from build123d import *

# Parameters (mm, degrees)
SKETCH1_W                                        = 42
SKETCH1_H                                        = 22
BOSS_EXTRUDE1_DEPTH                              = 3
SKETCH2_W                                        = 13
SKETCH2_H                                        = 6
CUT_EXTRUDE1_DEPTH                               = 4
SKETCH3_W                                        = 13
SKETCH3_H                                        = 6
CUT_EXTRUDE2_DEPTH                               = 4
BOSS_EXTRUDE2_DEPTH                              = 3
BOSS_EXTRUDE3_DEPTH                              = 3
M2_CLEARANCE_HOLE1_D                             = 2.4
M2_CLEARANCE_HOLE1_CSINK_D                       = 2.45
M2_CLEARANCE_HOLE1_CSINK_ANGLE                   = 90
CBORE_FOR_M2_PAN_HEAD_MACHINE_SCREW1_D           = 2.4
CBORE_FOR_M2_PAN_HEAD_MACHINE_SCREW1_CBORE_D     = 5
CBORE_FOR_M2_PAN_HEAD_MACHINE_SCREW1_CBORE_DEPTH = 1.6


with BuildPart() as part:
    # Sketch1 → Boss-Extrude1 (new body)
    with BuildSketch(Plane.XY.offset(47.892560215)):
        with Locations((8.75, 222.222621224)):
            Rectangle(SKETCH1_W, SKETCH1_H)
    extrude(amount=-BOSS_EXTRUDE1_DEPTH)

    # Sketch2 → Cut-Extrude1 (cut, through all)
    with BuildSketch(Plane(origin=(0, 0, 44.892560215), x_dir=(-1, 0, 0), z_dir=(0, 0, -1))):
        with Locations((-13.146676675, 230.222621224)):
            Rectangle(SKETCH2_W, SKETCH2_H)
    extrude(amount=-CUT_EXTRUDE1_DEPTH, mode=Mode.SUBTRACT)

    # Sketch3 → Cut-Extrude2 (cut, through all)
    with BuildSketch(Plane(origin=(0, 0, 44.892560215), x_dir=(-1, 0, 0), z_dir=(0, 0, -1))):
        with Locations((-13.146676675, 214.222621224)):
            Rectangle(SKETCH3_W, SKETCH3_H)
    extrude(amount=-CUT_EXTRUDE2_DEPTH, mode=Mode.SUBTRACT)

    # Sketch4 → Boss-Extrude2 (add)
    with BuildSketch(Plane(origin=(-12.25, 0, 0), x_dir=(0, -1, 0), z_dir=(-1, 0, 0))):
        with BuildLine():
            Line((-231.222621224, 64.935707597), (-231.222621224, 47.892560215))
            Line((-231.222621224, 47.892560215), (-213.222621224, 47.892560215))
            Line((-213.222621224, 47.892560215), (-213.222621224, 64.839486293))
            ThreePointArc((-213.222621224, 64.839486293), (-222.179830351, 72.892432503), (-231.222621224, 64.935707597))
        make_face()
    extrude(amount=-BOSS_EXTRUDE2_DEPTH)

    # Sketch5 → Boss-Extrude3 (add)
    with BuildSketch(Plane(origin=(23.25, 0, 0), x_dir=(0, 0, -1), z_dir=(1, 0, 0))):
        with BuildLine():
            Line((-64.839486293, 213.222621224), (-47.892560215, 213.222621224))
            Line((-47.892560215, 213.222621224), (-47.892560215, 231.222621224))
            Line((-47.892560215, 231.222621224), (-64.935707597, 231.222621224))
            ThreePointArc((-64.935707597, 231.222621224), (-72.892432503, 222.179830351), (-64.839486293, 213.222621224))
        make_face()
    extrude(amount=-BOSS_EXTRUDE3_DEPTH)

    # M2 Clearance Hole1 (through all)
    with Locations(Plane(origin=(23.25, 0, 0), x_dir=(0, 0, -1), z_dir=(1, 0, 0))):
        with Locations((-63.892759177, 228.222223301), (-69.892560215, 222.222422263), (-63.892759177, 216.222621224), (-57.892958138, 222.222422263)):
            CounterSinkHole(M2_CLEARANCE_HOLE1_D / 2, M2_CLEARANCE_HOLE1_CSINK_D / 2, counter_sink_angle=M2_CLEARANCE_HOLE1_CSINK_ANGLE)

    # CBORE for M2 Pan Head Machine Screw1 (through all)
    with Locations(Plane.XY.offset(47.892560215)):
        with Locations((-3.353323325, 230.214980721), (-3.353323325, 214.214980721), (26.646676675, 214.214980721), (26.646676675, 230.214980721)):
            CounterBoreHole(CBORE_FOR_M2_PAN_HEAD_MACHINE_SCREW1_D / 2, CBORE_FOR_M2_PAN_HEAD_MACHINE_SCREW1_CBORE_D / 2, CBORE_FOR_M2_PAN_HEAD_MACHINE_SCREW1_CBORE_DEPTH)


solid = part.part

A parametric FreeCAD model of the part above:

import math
import FreeCAD as App
import Part
import Sketcher


def add_polygon(sketch, points):
    """Adds a closed chain of lines whose ends are joined by coincident constraints."""
    first, n = sketch.GeometryCount, len(points)
    for a, b in zip(points, points[1:] + points[:1]):
        sketch.addGeometry(Part.LineSegment(App.Vector(*a, 0), App.Vector(*b, 0)), False)
    for i in range(n):
        sketch.addConstraint(Sketcher.Constraint("Coincident", first + i, 2, first + (i + 1) % n, 1))

doc = App.newDocument("Part")
params = doc.addObject("Spreadsheet::Sheet", "Params")
for row, (alias, value) in enumerate([
    ("sketch1_width", "42 mm"),
    ("sketch1_height", "22 mm"),
    ("pad1_length", "3 mm"),
    ("sketch2_width", "13 mm"),
    ("sketch2_height", "6 mm"),
    ("sketch3_width", "13 mm"),
    ("sketch3_height", "6 mm"),
    ("sketch4_width", "18 mm"),
    ("pad2_length", "3 mm"),
    ("sketch5_width", "18 mm"),
    ("pad3_length", "3 mm"),
    ("sketch6_diameter", "2.4 mm"),
    ("hole_diameter", "2.4 mm"),
    ("hole_csink_diameter", "2.45 mm"),
    ("sketch7_diameter", "2.4 mm"),
    ("hole2_diameter", "2.4 mm"),
    ("hole2_cbore_diameter", "5 mm"),
    ("hole2_cbore_depth", "1.6 mm"),
], start=1):
    params.set(f"A{row}", alias)
    params.set(f"B{row}", "=" + value)
    params.setAlias(f"B{row}", alias)

body = doc.addObject("PartDesign::Body", "Body")

# Sketch on XY plane
sketch1 = doc.addObject("Sketcher::SketchObject", "Sketch")
body.addObject(sketch1)
sketch1.AttachmentSupport = (doc.XY_Plane, [""])
sketch1.MapMode = "FlatFace"
sketch1.AttachmentOffset = App.Placement(App.Vector(0, 0, 47.89256), App.Rotation())
add_polygon(sketch1, [(-12.25, 233.222621), (-12.25, 211.222621), (29.75, 211.222621), (29.75, 233.222621)])  # lines 0-3
sketch1.addConstraint(Sketcher.Constraint("Vertical", 0))
sketch1.addConstraint(Sketcher.Constraint("Horizontal", 1))
sketch1.addConstraint(Sketcher.Constraint("Vertical", 2))
sketch1.addConstraint(Sketcher.Constraint("Horizontal", 3))
sketch1.addConstraint(Sketcher.Constraint("DistanceX", 1, 1, 1, 2, 42.0))
sketch1.addConstraint(Sketcher.Constraint("DistanceY", 0, 2, 0, 1, 22.0))
sketch1.addConstraint(Sketcher.Constraint("DistanceX", 0, 2, -1, 1, 12.25))
sketch1.addConstraint(Sketcher.Constraint("DistanceY", -1, 1, 0, 2, 211.222621))
sketch1.setExpression("Constraints[8]", "Params.sketch1_width")
sketch1.setExpression("Constraints[9]", "Params.sketch1_height")
pad1 = doc.addObject("PartDesign::Pad", "Pad")
body.addObject(pad1)
pad1.Profile = sketch1
pad1.setExpression("Length", "Params.pad1_length")
pad1.Reversed = True

# Sketch on XY plane
sketch2 = doc.addObject("Sketcher::SketchObject", "Sketch001")
body.addObject(sketch2)
sketch2.AttachmentSupport = (doc.XY_Plane, [""])
sketch2.MapMode = "FlatFace"
sketch2.AttachmentOffset = App.Placement(App.Vector(0, 0, 44.89256), App.Rotation())
add_polygon(sketch2, [(19.646677, 233.222621), (19.646677, 227.222621), (6.646677, 227.222621), (6.646677, 233.222621)])  # lines 0-3
sketch2.addConstraint(Sketcher.Constraint("Vertical", 0))
sketch2.addConstraint(Sketcher.Constraint("Horizontal", 1))
sketch2.addConstraint(Sketcher.Constraint("Vertical", 2))
sketch2.addConstraint(Sketcher.Constraint("Horizontal", 3))
sketch2.addConstraint(Sketcher.Constraint("DistanceX", 1, 2, 1, 1, 13.0))
sketch2.addConstraint(Sketcher.Constraint("DistanceY", 0, 2, 0, 1, 6.0))
sketch2.addConstraint(Sketcher.Constraint("DistanceY", -1, 1, 0, 2, 227.222621))
sketch2.addConstraint(Sketcher.Constraint("DistanceX", -1, 1, 0, 2, 19.646677))
sketch2.setExpression("Constraints[8]", "Params.sketch2_width")
sketch2.setExpression("Constraints[9]", "Params.sketch2_height")
pocket1 = doc.addObject("PartDesign::Pocket", "Pocket")
body.addObject(pocket1)
pocket1.Profile = sketch2
pocket1.Type = "ThroughAll"
pocket1.Reversed = True

# Sketch on XY plane
sketch3 = doc.addObject("Sketcher::SketchObject", "Sketch002")
body.addObject(sketch3)
sketch3.AttachmentSupport = (doc.XY_Plane, [""])
sketch3.MapMode = "FlatFace"
sketch3.AttachmentOffset = App.Placement(App.Vector(0, 0, 44.89256), App.Rotation())
add_polygon(sketch3, [(19.646677, 217.222621), (19.646677, 211.222621), (6.646677, 211.222621), (6.646677, 217.222621)])  # lines 0-3
sketch3.addConstraint(Sketcher.Constraint("Vertical", 0))
sketch3.addConstraint(Sketcher.Constraint("Horizontal", 1))
sketch3.addConstraint(Sketcher.Constraint("Vertical", 2))
sketch3.addConstraint(Sketcher.Constraint("Horizontal", 3))
sketch3.addConstraint(Sketcher.Constraint("DistanceX", 1, 2, 1, 1, 13.0))
sketch3.addConstraint(Sketcher.Constraint("DistanceY", 0, 2, 0, 1, 6.0))
sketch3.addConstraint(Sketcher.Constraint("DistanceY", -1, 1, 0, 2, 211.222621))
sketch3.addConstraint(Sketcher.Constraint("DistanceX", -1, 1, 0, 2, 19.646677))
sketch3.setExpression("Constraints[8]", "Params.sketch3_width")
sketch3.setExpression("Constraints[9]", "Params.sketch3_height")
pocket2 = doc.addObject("PartDesign::Pocket", "Pocket001")
body.addObject(pocket2)
pocket2.Profile = sketch3
pocket2.Type = "ThroughAll"
pocket2.Reversed = True

# Sketch on YZ plane
sketch4 = doc.addObject("Sketcher::SketchObject", "Sketch003")
body.addObject(sketch4)
sketch4.AttachmentSupport = (doc.YZ_Plane, [""])
sketch4.MapMode = "FlatFace"
sketch4.AttachmentOffset = App.Placement(App.Vector(0, 0, -12.25), App.Rotation())
sketch4.addGeometry(Part.LineSegment(App.Vector(231.222621, 64.935708, 0), App.Vector(231.222621, 47.89256, 0)), False)
sketch4.addGeometry(Part.LineSegment(App.Vector(231.222621, 47.89256, 0), App.Vector(213.222621, 47.89256, 0)), False)
sketch4.addGeometry(Part.LineSegment(App.Vector(213.222621, 47.89256, 0), App.Vector(213.222621, 64.839486, 0)), False)
sketch4.addGeometry(Part.ArcOfCircle(Part.Circle(App.Vector(222.228272, 63.830573, 0), App.Vector(0, 0, 1), 9.061989), math.radians(7.004816), math.radians(173.607742)), False)
sketch4.addConstraint(Sketcher.Constraint("Coincident", 0, 2, 1, 1))
sketch4.addConstraint(Sketcher.Constraint("Coincident", 1, 2, 2, 1))
sketch4.addConstraint(Sketcher.Constraint("Coincident", 2, 2, 3, 2))
sketch4.addConstraint(Sketcher.Constraint("Coincident", 3, 1, 0, 1))
sketch4.addConstraint(Sketcher.Constraint("Vertical", 0))
sketch4.addConstraint(Sketcher.Constraint("Horizontal", 1))
sketch4.addConstraint(Sketcher.Constraint("Vertical", 2))
sketch4.addConstraint(Sketcher.Constraint("DistanceX", 1, 2, 1, 1, 18.0))
sketch4.addConstraint(Sketcher.Constraint("Radius", 3, 9.061989))
sketch4.addConstraint(Sketcher.Constraint("DistanceY", 0, 2, 0, 1, 17.043147))
sketch4.addConstraint(Sketcher.Constraint("DistanceY", 2, 1, 2, 2, 16.946926))
sketch4.addConstraint(Sketcher.Constraint("DistanceX", -1, 1, 3, 3, 222.228272))
sketch4.addConstraint(Sketcher.Constraint("DistanceY", -1, 1, 0, 2, 47.89256))
sketch4.setExpression("Constraints[7]", "Params.sketch4_width")
pad2 = doc.addObject("PartDesign::Pad", "Pad001")
body.addObject(pad2)
pad2.Profile = sketch4
pad2.setExpression("Length", "Params.pad2_length")

# Sketch on YZ plane
sketch5 = doc.addObject("Sketcher::SketchObject", "Sketch004")
body.addObject(sketch5)
sketch5.AttachmentSupport = (doc.YZ_Plane, [""])
sketch5.MapMode = "FlatFace"
sketch5.AttachmentOffset = App.Placement(App.Vector(0, 0, 23.25), App.Rotation())
sketch5.addGeometry(Part.LineSegment(App.Vector(213.222621, 64.839486, 0), App.Vector(213.222621, 47.89256, 0)), False)
sketch5.addGeometry(Part.LineSegment(App.Vector(213.222621, 47.89256, 0), App.Vector(231.222621, 47.89256, 0)), False)
sketch5.addGeometry(Part.LineSegment(App.Vector(231.222621, 47.89256, 0), App.Vector(231.222621, 64.935708, 0)), False)
sketch5.addGeometry(Part.ArcOfCircle(Part.Circle(App.Vector(222.228272, 63.830573, 0), App.Vector(0, 0, 1), 9.061989), math.radians(7.004816), math.radians(173.607742)), False)
sketch5.addConstraint(Sketcher.Constraint("Coincident", 0, 2, 1, 1))
sketch5.addConstraint(Sketcher.Constraint("Coincident", 1, 2, 2, 1))
sketch5.addConstraint(Sketcher.Constraint("Coincident", 2, 2, 3, 1))
sketch5.addConstraint(Sketcher.Constraint("Coincident", 3, 2, 0, 1))
sketch5.addConstraint(Sketcher.Constraint("Vertical", 0))
sketch5.addConstraint(Sketcher.Constraint("Horizontal", 1))
sketch5.addConstraint(Sketcher.Constraint("Vertical", 2))
sketch5.addConstraint(Sketcher.Constraint("DistanceX", 1, 1, 1, 2, 18.0))
sketch5.addConstraint(Sketcher.Constraint("Radius", 3, 9.061989))
sketch5.addConstraint(Sketcher.Constraint("DistanceY", 0, 2, 0, 1, 16.946926))
sketch5.addConstraint(Sketcher.Constraint("DistanceY", 2, 1, 2, 2, 17.043147))
sketch5.addConstraint(Sketcher.Constraint("DistanceX", -1, 1, 3, 3, 222.228272))
sketch5.addConstraint(Sketcher.Constraint("DistanceY", -1, 1, 0, 2, 47.89256))
sketch5.setExpression("Constraints[7]", "Params.sketch5_width")
pad3 = doc.addObject("PartDesign::Pad", "Pad002")
body.addObject(pad3)
pad3.Profile = sketch5
pad3.setExpression("Length", "Params.pad3_length")
pad3.Reversed = True

# Sketch on YZ plane
sketch6 = doc.addObject("Sketcher::SketchObject", "Sketch005")
body.addObject(sketch6)
sketch6.AttachmentSupport = (doc.YZ_Plane, [""])
sketch6.MapMode = "FlatFace"
sketch6.AttachmentOffset = App.Placement(App.Vector(0, 0, 23.25), App.Rotation())
sketch6.addGeometry(Part.Circle(App.Vector(228.222223, 63.892759, 0), App.Vector(0, 0, 1), 1.2), False)
sketch6.addGeometry(Part.Circle(App.Vector(222.222422, 69.89256, 0), App.Vector(0, 0, 1), 1.2), False)
sketch6.addGeometry(Part.Circle(App.Vector(216.222621, 63.892759, 0), App.Vector(0, 0, 1), 1.2), False)
sketch6.addGeometry(Part.Circle(App.Vector(222.222422, 57.892958, 0), App.Vector(0, 0, 1), 1.2), False)
sketch6.addConstraint(Sketcher.Constraint("Equal", 0, 1))
sketch6.addConstraint(Sketcher.Constraint("Equal", 1, 2))
sketch6.addConstraint(Sketcher.Constraint("Equal", 2, 3))
sketch6.addConstraint(Sketcher.Constraint("Horizontal", 0, 3, 2, 3))
sketch6.addConstraint(Sketcher.Constraint("Vertical", 1, 3, 3, 3))
sketch6.addConstraint(Sketcher.Constraint("Diameter", 0, 2.4))
sketch6.addConstraint(Sketcher.Constraint("DistanceX", 1, 3, 0, 3, 5.999801))
sketch6.addConstraint(Sketcher.Constraint("DistanceY", 0, 3, 1, 3, 5.999801))
sketch6.addConstraint(Sketcher.Constraint("DistanceX", 2, 3, 1, 3, 5.999801))
sketch6.addConstraint(Sketcher.Constraint("DistanceY", 3, 3, 0, 3, 5.999801))
sketch6.addConstraint(Sketcher.Constraint("DistanceY", -1, 1, 0, 3, 63.892759))
sketch6.addConstraint(Sketcher.Constraint("DistanceX", -1, 1, 2, 3, 216.222621))
sketch6.setExpression("Constraints[5]", "Params.sketch6_diameter")
doc.recompute()
hole = doc.addObject("PartDesign::Hole", "Hole")
body.addObject(hole)
hole.Profile = sketch6
hole.ThreadType = "None"
hole.setExpression("Diameter", "Params.hole_diameter")
hole.DepthType = "ThroughAll"
hole.HoleCutType = "Countersink"
hole.setExpression("HoleCutDiameter", "Params.hole_csink_diameter")
hole.HoleCutCountersinkAngle = 90

# Sketch on XY plane
sketch7 = doc.addObject("Sketcher::SketchObject", "Sketch006")
body.addObject(sketch7)
sketch7.AttachmentSupport = (doc.XY_Plane, [""])
sketch7.MapMode = "FlatFace"
sketch7.AttachmentOffset = App.Placement(App.Vector(0, 0, 47.89256), App.Rotation())
sketch7.addGeometry(Part.Circle(App.Vector(-3.353323, 230.214981, 0), App.Vector(0, 0, 1), 1.2), False)
sketch7.addGeometry(Part.Circle(App.Vector(-3.353323, 214.214981, 0), App.Vector(0, 0, 1), 1.2), False)
sketch7.addGeometry(Part.Circle(App.Vector(26.646677, 214.214981, 0), App.Vector(0, 0, 1), 1.2), False)
sketch7.addGeometry(Part.Circle(App.Vector(26.646677, 230.214981, 0), App.Vector(0, 0, 1), 1.2), False)
sketch7.addConstraint(Sketcher.Constraint("Equal", 0, 1))
sketch7.addConstraint(Sketcher.Constraint("Equal", 1, 2))
sketch7.addConstraint(Sketcher.Constraint("Equal", 2, 3))
sketch7.addConstraint(Sketcher.Constraint("Horizontal", 1, 3, 2, 3))
sketch7.addConstraint(Sketcher.Constraint("Horizontal", 0, 3, 3, 3))
sketch7.addConstraint(Sketcher.Constraint("Vertical", 0, 3, 1, 3))
sketch7.addConstraint(Sketcher.Constraint("Vertical", 2, 3, 3, 3))
sketch7.addConstraint(Sketcher.Constraint("Diameter", 0, 2.4))
sketch7.addConstraint(Sketcher.Constraint("DistanceY", 1, 3, 0, 3, 16.0))
sketch7.addConstraint(Sketcher.Constraint("DistanceX", 1, 3, 2, 3, 30.0))
sketch7.addConstraint(Sketcher.Constraint("DistanceY", -1, 1, 0, 3, 230.214981))
sketch7.addConstraint(Sketcher.Constraint("DistanceX", 0, 3, -1, 1, 3.353323))
sketch7.setExpression("Constraints[7]", "Params.sketch7_diameter")
doc.recompute()
hole2 = doc.addObject("PartDesign::Hole", "Hole001")
body.addObject(hole2)
hole2.Profile = sketch7
hole2.ThreadType = "None"
hole2.setExpression("Diameter", "Params.hole2_diameter")
hole2.DepthType = "ThroughAll"
hole2.HoleCutType = "Counterbore"
hole2.setExpression("HoleCutDiameter", "Params.hole2_cbore_diameter")
hole2.setExpression("HoleCutDepth", "Params.hole2_cbore_depth")

doc.recompute()
